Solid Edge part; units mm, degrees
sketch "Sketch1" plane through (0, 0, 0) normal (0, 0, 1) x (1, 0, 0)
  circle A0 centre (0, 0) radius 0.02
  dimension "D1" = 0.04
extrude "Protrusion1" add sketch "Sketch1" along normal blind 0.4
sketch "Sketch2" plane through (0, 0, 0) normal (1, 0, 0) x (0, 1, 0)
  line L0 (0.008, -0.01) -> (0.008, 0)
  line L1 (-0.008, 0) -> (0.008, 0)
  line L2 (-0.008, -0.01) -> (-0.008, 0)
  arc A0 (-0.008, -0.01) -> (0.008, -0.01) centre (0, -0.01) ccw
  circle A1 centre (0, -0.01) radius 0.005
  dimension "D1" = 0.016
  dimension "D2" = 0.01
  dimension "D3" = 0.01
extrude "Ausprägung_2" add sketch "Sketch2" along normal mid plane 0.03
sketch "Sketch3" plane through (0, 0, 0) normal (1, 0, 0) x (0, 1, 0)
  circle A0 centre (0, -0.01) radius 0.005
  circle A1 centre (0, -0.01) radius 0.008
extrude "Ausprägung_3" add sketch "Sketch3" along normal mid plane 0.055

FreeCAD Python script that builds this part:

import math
import FreeCAD as App
import Part
import Sketcher

doc = App.newDocument("Part")
body = doc.addObject("PartDesign::Body", "Body")

# Sketch on XY plane
sketch1 = body.newObject("Sketcher::SketchObject", "Sketch")
sketch1.AttachmentSupport = (doc.getObject("XY_Plane"), [""])
sketch1.MapMode = "FlatFace"
sketch1.addGeometry(Part.Circle(App.Vector(0, 0, 0), App.Vector(0, 0, 1), 0.02), False)
sketch1.addConstraint([
    Sketcher.Constraint("Coincident", 0, 3, -1, 1),
    Sketcher.Constraint("Diameter", 0, 0.04),
])
pad1 = body.newObject("PartDesign::Pad", "Pad")
pad1.Profile = sketch1
pad1.Length = 0.4

# Sketch on YZ plane
sketch2 = body.newObject("Sketcher::SketchObject", "Sketch001")
sketch2.AttachmentSupport = (doc.getObject("YZ_Plane"), [""])
sketch2.MapMode = "FlatFace"
sketch2.addGeometry([
    Part.ArcOfCircle(Part.Circle(App.Vector(0, -0.01, 0), App.Vector(0, 0, 1), 0.008), math.radians(180), math.radians(360)),  # 0
    Part.LineSegment(App.Vector(0.008, -0.01, 0), App.Vector(0.008, 0, 0)),  # 1
    Part.LineSegment(App.Vector(0.008, 0, 0), App.Vector(-0.008, 0, 0)),  # 2
    Part.LineSegment(App.Vector(-0.008, 0, 0), App.Vector(-0.008, -0.01, 0)),  # 3
    Part.Circle(App.Vector(0, -0.01, 0), App.Vector(0, 0, 1), 0.005),  # 4
], False)
sketch2.addConstraint([
    Sketcher.Constraint("Tangent", 0, 2, 1, 1),
    Sketcher.Constraint("Coincident", 1, 2, 2, 1),
    Sketcher.Constraint("Coincident", 2, 2, 3, 1),
    Sketcher.Constraint("Tangent", 3, 2, 0, 1),
    Sketcher.Constraint("Vertical", 1),
    Sketcher.Constraint("Horizontal", 2),
    Sketcher.Constraint("Vertical", 3),
    Sketcher.Constraint("Coincident", 4, 3, 0, 3),
    Sketcher.Constraint("Symmetric", 1, 2, 2, 2, -1, 1),
    Sketcher.Constraint("Radius", 0, 0.008),
    Sketcher.Constraint("Diameter", 4, 0.01),
    Sketcher.Constraint("DistanceY", 1, 1, 1, 2, 0.01),
])
pad2 = body.newObject("PartDesign::Pad", "Pad001")
pad2.Profile = sketch2
pad2.Length = 0.03
pad2.Midplane = True

# Sketch on YZ plane
sketch3 = body.newObject("Sketcher::SketchObject", "Sketch002")
sketch3.AttachmentSupport = (doc.getObject("YZ_Plane"), [""])
sketch3.MapMode = "FlatFace"
sketch3.addGeometry([
    Part.Circle(App.Vector(0, -0.01, 0), App.Vector(0, 0, 1), 0.008),
    Part.Circle(App.Vector(0, -0.01, 0), App.Vector(0, 0, 1), 0.005),
], False)
sketch3.addConstraint([
    Sketcher.Constraint("Coincident", 1, 3, 0, 3),
    Sketcher.Constraint("PointOnObject", 0, 3, -2),
    Sketcher.Constraint("Diameter", 1, 0.01),
    Sketcher.Constraint("Diameter", 0, 0.016),
    Sketcher.Constraint("DistanceY", 0, 3, -1, 1, 0.01),
])
pad3 = body.newObject("PartDesign::Pad", "Pad002")
pad3.Profile = sketch3
pad3.Length = 0.055
pad3.Midplane = True

doc.recompute()
